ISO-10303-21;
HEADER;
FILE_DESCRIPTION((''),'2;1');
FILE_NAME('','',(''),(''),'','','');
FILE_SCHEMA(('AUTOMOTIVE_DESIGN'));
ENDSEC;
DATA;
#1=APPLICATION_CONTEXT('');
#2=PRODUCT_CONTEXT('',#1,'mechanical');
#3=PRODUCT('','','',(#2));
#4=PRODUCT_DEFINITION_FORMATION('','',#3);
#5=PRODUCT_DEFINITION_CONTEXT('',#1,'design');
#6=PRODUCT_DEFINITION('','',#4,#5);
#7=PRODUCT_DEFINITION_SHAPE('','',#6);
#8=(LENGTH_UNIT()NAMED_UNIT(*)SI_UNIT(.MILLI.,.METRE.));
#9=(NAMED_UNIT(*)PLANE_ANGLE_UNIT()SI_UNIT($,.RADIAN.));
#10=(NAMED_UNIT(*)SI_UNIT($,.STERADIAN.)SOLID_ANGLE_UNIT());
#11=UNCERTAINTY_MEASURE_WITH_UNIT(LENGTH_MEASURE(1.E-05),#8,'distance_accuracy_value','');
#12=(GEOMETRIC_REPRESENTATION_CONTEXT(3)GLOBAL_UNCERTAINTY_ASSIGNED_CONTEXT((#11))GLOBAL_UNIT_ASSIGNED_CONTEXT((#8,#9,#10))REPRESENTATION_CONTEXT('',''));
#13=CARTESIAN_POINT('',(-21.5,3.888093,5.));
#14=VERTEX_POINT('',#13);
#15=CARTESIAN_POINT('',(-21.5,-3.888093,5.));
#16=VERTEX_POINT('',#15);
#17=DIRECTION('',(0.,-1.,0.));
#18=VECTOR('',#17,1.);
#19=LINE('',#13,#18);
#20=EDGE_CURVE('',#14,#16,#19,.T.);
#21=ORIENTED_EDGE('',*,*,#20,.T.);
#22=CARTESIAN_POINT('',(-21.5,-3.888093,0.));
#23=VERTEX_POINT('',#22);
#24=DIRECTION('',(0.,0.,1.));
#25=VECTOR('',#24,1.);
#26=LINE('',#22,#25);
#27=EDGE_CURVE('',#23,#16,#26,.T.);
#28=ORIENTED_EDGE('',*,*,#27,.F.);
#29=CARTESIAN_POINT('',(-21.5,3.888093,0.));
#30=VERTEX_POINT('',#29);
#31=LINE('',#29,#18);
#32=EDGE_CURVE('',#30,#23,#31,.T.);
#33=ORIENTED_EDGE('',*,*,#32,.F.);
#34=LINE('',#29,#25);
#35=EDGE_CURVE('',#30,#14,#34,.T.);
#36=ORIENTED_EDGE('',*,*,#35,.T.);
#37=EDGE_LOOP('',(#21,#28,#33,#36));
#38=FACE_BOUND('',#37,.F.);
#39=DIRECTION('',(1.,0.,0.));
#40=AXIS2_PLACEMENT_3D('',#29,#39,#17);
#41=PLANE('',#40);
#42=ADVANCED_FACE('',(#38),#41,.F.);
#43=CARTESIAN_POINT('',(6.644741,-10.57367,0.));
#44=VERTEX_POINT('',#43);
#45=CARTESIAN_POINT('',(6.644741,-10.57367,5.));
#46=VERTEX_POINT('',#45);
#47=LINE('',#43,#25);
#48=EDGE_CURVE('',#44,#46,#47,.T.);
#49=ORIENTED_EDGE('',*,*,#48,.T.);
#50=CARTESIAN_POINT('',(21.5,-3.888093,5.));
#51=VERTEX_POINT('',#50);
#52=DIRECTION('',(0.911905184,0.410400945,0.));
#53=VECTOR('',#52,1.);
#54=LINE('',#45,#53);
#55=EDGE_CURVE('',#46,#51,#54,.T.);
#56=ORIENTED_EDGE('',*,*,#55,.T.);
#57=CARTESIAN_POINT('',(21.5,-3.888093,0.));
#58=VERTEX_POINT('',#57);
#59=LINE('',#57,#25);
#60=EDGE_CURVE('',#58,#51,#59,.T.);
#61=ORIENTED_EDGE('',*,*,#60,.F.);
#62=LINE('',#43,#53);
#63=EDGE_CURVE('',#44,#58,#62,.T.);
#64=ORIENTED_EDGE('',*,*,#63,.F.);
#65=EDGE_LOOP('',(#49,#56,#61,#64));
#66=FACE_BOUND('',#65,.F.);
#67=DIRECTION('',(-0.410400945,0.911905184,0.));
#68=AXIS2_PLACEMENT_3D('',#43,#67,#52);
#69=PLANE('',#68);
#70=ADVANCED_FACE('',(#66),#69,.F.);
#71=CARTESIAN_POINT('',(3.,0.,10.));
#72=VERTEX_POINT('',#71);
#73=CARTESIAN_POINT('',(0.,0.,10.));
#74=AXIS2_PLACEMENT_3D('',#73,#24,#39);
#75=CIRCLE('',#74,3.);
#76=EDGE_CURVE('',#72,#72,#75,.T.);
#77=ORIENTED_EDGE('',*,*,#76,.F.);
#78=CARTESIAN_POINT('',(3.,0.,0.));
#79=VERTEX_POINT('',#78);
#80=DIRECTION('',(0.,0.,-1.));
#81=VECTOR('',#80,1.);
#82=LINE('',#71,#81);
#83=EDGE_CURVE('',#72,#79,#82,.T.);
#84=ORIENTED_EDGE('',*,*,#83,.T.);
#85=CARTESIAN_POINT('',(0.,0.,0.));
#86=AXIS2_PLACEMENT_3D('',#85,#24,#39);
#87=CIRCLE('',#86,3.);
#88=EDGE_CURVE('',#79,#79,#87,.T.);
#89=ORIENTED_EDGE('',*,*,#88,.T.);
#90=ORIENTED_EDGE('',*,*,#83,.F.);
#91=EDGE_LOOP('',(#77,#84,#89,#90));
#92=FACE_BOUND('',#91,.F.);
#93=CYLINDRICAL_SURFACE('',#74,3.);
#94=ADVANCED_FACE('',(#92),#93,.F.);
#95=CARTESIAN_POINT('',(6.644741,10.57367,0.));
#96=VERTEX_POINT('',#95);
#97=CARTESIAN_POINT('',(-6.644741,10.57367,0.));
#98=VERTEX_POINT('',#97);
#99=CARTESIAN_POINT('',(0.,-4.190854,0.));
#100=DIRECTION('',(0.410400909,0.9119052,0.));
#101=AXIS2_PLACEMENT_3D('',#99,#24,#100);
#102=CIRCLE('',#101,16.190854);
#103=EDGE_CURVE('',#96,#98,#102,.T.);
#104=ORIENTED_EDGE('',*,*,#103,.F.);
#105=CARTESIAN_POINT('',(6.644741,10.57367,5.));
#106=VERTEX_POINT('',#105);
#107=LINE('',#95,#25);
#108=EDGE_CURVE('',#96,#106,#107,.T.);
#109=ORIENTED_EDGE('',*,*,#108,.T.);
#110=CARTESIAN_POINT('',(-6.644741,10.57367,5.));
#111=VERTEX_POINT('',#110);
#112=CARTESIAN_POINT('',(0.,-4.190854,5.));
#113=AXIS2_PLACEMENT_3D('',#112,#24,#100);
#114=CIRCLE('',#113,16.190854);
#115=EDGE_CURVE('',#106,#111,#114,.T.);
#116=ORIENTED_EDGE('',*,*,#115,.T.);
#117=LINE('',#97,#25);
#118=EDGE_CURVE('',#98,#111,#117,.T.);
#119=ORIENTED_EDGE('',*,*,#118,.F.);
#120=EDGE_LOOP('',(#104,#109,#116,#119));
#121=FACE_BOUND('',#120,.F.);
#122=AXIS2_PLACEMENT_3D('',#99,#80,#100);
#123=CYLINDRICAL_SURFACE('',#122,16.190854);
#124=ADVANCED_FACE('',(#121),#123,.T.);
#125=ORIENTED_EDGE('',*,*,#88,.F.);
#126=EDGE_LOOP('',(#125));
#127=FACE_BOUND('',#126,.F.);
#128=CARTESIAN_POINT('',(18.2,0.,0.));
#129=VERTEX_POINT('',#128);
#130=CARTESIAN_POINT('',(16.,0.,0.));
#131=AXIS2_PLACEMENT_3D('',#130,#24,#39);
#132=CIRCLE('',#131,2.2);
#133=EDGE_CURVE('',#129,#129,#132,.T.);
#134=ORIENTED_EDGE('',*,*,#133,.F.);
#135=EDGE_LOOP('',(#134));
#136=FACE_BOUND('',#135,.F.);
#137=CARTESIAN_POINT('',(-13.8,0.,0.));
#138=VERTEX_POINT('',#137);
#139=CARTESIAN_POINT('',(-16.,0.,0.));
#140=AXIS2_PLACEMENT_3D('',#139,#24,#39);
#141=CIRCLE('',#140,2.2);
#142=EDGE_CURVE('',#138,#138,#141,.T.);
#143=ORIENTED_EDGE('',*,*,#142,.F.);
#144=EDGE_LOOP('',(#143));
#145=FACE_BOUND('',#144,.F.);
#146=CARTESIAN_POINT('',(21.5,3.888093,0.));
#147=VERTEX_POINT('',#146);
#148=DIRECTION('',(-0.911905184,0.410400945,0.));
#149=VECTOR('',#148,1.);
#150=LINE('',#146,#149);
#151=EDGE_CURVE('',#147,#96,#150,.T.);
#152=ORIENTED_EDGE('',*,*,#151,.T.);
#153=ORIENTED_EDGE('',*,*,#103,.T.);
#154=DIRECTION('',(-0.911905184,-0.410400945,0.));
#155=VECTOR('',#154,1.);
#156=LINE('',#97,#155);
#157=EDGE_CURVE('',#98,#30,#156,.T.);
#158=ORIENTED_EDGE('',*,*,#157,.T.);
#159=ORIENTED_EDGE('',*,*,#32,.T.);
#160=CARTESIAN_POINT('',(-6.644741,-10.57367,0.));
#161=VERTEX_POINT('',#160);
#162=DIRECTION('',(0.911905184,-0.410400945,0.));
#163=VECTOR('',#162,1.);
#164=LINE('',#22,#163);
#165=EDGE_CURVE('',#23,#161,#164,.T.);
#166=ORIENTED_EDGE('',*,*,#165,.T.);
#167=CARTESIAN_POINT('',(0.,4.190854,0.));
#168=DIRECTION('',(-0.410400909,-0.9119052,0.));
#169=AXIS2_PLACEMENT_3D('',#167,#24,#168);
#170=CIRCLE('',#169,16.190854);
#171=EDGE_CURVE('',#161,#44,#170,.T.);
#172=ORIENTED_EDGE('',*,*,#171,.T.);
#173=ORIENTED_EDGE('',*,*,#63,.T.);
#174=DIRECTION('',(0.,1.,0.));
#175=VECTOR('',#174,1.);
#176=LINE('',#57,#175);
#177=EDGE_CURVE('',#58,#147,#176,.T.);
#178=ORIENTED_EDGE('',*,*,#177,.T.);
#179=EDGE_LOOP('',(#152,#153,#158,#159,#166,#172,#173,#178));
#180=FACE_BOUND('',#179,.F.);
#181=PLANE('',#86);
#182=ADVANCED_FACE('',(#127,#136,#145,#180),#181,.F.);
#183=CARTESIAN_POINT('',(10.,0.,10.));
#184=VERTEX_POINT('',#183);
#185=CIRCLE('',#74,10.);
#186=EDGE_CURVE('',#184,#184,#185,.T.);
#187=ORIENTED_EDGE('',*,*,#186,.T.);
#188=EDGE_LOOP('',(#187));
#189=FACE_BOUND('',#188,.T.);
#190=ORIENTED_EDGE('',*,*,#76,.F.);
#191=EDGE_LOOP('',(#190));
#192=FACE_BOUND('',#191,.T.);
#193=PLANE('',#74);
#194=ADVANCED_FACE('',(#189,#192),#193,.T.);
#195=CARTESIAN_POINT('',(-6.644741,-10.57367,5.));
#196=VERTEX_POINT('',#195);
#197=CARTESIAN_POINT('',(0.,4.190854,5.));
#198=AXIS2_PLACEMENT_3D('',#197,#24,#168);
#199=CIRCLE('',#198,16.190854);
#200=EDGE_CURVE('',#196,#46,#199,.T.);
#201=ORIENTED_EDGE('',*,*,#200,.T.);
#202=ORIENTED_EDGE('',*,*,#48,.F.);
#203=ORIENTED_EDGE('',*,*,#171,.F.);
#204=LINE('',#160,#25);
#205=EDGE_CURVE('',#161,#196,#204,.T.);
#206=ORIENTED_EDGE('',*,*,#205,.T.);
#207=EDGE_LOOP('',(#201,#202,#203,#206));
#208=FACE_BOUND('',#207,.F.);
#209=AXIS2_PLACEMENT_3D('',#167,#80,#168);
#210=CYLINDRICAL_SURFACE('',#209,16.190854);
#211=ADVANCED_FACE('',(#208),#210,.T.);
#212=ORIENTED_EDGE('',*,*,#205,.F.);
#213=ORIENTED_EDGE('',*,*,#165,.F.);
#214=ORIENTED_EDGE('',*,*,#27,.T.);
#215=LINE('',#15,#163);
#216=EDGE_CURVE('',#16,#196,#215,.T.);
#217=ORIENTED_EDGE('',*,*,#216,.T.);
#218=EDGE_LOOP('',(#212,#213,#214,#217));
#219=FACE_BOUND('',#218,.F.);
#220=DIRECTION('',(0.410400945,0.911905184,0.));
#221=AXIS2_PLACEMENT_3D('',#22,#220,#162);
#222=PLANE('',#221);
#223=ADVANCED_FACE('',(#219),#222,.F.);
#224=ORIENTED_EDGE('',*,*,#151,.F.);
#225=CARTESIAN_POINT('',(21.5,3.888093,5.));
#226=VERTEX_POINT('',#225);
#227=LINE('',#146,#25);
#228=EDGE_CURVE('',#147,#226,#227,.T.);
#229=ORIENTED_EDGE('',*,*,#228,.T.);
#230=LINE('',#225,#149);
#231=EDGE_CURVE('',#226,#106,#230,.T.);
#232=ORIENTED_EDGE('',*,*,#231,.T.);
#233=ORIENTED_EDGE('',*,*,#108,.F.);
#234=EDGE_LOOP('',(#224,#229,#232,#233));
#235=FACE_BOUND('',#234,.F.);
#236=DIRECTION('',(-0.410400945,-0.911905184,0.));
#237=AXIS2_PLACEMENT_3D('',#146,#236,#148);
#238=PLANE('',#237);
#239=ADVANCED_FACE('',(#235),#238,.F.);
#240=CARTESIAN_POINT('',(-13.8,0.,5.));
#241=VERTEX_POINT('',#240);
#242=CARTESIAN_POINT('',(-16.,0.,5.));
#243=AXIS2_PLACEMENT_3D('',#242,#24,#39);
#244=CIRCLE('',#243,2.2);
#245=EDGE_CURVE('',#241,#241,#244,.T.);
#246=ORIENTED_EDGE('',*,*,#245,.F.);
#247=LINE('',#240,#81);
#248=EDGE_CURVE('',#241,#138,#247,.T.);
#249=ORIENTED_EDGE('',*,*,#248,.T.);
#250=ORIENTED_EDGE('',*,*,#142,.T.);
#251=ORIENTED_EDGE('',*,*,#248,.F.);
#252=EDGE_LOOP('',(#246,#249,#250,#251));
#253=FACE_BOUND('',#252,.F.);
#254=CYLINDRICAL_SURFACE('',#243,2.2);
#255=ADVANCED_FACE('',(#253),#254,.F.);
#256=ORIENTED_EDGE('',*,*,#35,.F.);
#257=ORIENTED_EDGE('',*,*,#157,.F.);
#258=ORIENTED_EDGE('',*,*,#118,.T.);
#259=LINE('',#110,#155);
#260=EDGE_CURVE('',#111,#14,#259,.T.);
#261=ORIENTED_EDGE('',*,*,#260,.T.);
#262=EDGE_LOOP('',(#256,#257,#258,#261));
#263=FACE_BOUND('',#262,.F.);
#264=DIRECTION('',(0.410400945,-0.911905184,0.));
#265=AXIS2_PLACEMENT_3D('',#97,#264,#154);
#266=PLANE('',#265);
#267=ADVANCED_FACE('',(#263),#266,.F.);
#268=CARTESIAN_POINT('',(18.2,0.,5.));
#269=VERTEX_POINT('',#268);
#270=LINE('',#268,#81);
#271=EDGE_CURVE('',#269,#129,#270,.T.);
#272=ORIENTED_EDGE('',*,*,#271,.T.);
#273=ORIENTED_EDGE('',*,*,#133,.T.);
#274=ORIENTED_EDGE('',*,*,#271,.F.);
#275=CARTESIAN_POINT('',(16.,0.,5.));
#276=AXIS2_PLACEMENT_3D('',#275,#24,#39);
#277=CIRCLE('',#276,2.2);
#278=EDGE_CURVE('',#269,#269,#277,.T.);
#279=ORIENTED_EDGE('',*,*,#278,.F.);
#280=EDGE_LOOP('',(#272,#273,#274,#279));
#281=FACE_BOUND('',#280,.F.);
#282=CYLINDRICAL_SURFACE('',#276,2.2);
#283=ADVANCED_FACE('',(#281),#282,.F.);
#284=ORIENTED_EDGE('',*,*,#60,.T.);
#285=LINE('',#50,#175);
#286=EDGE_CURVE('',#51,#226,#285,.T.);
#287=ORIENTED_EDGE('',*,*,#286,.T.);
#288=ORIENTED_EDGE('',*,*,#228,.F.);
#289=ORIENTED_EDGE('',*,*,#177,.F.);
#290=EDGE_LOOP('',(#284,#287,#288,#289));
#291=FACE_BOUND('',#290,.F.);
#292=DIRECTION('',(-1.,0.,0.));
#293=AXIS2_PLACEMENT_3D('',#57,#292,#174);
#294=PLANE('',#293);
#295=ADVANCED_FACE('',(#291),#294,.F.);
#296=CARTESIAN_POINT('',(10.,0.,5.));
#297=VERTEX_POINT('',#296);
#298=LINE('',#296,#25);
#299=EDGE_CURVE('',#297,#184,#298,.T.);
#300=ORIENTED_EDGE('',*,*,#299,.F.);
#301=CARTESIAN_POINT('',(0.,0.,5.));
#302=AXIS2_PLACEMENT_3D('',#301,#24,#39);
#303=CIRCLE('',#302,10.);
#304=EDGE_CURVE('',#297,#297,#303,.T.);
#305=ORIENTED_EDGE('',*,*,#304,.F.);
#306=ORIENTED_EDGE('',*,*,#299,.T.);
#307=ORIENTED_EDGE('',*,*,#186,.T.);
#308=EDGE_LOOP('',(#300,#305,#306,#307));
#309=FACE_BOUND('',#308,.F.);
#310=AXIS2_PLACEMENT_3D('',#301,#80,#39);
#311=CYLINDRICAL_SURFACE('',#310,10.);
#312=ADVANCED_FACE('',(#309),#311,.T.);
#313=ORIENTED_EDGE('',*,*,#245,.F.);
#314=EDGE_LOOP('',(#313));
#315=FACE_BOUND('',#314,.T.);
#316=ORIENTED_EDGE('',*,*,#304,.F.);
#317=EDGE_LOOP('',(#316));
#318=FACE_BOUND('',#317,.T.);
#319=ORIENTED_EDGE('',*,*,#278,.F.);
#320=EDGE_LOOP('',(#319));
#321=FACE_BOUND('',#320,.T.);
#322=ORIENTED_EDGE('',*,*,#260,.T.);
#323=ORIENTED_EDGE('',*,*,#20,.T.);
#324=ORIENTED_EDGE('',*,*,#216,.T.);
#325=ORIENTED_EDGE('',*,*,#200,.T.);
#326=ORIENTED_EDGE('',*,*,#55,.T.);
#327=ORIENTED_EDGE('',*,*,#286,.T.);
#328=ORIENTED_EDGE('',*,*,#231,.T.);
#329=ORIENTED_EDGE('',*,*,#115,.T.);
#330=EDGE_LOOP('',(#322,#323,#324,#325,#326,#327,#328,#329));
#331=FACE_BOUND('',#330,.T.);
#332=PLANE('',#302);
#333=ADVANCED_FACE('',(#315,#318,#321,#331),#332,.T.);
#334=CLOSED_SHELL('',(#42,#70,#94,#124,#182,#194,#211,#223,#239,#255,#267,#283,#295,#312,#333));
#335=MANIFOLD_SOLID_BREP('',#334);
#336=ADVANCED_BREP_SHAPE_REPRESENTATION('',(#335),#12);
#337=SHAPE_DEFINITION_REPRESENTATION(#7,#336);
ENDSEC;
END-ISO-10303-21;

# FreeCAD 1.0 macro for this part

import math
import FreeCAD as App
import Part
import Sketcher

V = App.Vector
Q = App.Units.Quantity

doc = App.newDocument("Part")
body = doc.addObject("PartDesign::Body", "Body")

sketch1 = doc.addObject("Sketcher::SketchObject", "Sketch")
body.addObject(sketch1)
sketch1.AttachmentSupport = (doc.XY_Plane, [""])
sketch1.MapMode = "FlatFace"
sketch1.addGeometry([
    Part.LineSegment(V(-22, 4, 0), V(-22, -4, 0)),
    Part.LineSegment(V(-22, -4, 0), V(-7, -11, 0)),
    Part.ArcOfCircle(Part.Circle(V(0, 4, 0), V(0, 0, 1), 16), math.radians(-114), math.radians(-66)),
    Part.LineSegment(V(7, -11, 0), V(22, -4, 0)),
    Part.LineSegment(V(22, -4, 0), V(22, 4, 0)),
    Part.LineSegment(V(22, 4, 0), V(7, 11, 0)),
    Part.ArcOfCircle(Part.Circle(V(0, -4, 0), V(0, 0, 1), 16), math.radians(66), math.radians(114)),
    Part.LineSegment(V(-7, 11, 0), V(-22, 4, 0)),
], False)
sketch1.addConstraint([
    Sketcher.Constraint("Coincident", 0, 2, 1, 1),
    Sketcher.Constraint("Tangent", 1, 2, 2, 1),
    Sketcher.Constraint("Tangent", 2, 2, 3, 1),
    Sketcher.Constraint("Coincident", 3, 2, 4, 1),
    Sketcher.Constraint("Coincident", 4, 2, 5, 1),
    Sketcher.Constraint("Tangent", 5, 2, 6, 1),
    Sketcher.Constraint("Tangent", 6, 2, 7, 1),
    Sketcher.Constraint("Coincident", 7, 2, 0, 1),
    Sketcher.Constraint("Vertical", 0),
    Sketcher.Constraint("Vertical", 4),
    Sketcher.Constraint("Equal", 2, 6),
    Sketcher.Constraint("Symmetric", 2, 3, 6, 3, -1, 1),
    Sketcher.Constraint("Symmetric", 0, 2, 4, 2, -1, 1),
    Sketcher.Constraint("Symmetric", 1, 2, 2, 2, -2),
    Sketcher.Constraint("Parallel", 3, 7),
    Sketcher.Constraint("DistanceX", 0, 2, 3, 2, Q("43 mm")),
    Sketcher.Constraint("Radius", 2, Q("16.190854 mm")),
    Sketcher.Constraint("DistanceY", 0, 2, 0, 1, Q("7.776186 mm")),
    Sketcher.Constraint("DistanceX", 1, 2, -1, 1, Q("6.644741 mm")),
])
pad1 = doc.addObject("PartDesign::Pad", "Pad")
body.addObject(pad1)
pad1.Profile = sketch1
pad1.Length = 5

sketch2 = doc.addObject("Sketcher::SketchObject", "Sketch001")
body.addObject(sketch2)
sketch2.AttachmentSupport = (doc.XY_Plane, [""])
sketch2.MapMode = "FlatFace"
sketch2.AttachmentOffset = App.Placement(V(0, 0, 5), App.Rotation())
sketch2.addGeometry(Part.Circle(V(0, 0, 0), V(0, 0, 1), 10), False)
sketch2.addConstraint([
    Sketcher.Constraint("Coincident", 0, 3, -1, 1),
    Sketcher.Constraint("Diameter", 0, Q("20 mm")),
])
pad2 = doc.addObject("PartDesign::Pad", "Pad001")
body.addObject(pad2)
pad2.Profile = sketch2
pad2.Length = 5

sketch3 = doc.addObject("Sketcher::SketchObject", "Sketch002")
body.addObject(sketch3)
sketch3.AttachmentSupport = (doc.XY_Plane, [""])
sketch3.MapMode = "FlatFace"
sketch3.AttachmentOffset = App.Placement(V(0, 0, 5), App.Rotation())
sketch3.addGeometry([
    Part.Circle(V(-16, 0, 0), V(0, 0, 1), 2.2),
    Part.Circle(V(16, 0, 0), V(0, 0, 1), 2.2),
], False)
sketch3.addConstraint([
    Sketcher.Constraint("Equal", 0, 1),
    Sketcher.Constraint("Symmetric", 0, 3, 1, 3, -1, 1),
    Sketcher.Constraint("PointOnObject", 0, 3, -1),
    Sketcher.Constraint("Diameter", 0, Q("4.4 mm")),
    Sketcher.Constraint("DistanceX", 0, 3, -1, 1, Q("16 mm")),
])
pocket1 = doc.addObject("PartDesign::Pocket", "Pocket")
body.addObject(pocket1)
pocket1.Profile = sketch3
pocket1.Length = 25

sketch4 = doc.addObject("Sketcher::SketchObject", "Sketch003")
body.addObject(sketch4)
sketch4.AttachmentSupport = (doc.XY_Plane, [""])
sketch4.MapMode = "FlatFace"
sketch4.AttachmentOffset = App.Placement(V(0, 0, 10), App.Rotation())
sketch4.addGeometry(Part.Circle(V(0, 0, 0), V(0, 0, 1), 3), False)
sketch4.addConstraint([
    Sketcher.Constraint("Coincident", 0, 3, -1, 1),
    Sketcher.Constraint("Diameter", 0, Q("6 mm")),
])
pocket2 = doc.addObject("PartDesign::Pocket", "Pocket001")
body.addObject(pocket2)
pocket2.Profile = sketch4
pocket2.Type = "ThroughAll"

doc.recompute()
